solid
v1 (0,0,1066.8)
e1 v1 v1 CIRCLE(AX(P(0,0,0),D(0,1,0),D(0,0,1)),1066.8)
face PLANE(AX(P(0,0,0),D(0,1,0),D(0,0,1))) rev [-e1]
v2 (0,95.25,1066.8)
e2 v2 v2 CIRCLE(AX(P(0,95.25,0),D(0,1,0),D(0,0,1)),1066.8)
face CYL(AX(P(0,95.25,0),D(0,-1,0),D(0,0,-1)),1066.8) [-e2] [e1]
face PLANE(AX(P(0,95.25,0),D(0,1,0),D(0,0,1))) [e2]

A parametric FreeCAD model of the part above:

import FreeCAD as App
import Part
import Sketcher
Q = App.Units.Quantity

doc = App.newDocument("Part")
body = doc.addObject("PartDesign::Body", "Body")

# Sketch on XZ plane
sketch1 = doc.addObject("Sketcher::SketchObject", "Sketch")
body.addObject(sketch1)
sketch1.AttachmentSupport = (doc.XZ_Plane, [""])
sketch1.MapMode = "FlatFace"
sketch1.addGeometry(Part.Circle(App.Vector(0, 0, 0), App.Vector(0, 0, 1), 1066.8), False)
sketch1.addConstraint([
    Sketcher.Constraint("Coincident", 0, 3, -1, 1),
    Sketcher.Constraint("Diameter", 0, Q("84 in")),
])
pad1 = doc.addObject("PartDesign::Pad", "Pad")
body.addObject(pad1)
pad1.Profile = sketch1
pad1.Length = Q("3.75 in")
pad1.Reversed = True

doc.recompute()
